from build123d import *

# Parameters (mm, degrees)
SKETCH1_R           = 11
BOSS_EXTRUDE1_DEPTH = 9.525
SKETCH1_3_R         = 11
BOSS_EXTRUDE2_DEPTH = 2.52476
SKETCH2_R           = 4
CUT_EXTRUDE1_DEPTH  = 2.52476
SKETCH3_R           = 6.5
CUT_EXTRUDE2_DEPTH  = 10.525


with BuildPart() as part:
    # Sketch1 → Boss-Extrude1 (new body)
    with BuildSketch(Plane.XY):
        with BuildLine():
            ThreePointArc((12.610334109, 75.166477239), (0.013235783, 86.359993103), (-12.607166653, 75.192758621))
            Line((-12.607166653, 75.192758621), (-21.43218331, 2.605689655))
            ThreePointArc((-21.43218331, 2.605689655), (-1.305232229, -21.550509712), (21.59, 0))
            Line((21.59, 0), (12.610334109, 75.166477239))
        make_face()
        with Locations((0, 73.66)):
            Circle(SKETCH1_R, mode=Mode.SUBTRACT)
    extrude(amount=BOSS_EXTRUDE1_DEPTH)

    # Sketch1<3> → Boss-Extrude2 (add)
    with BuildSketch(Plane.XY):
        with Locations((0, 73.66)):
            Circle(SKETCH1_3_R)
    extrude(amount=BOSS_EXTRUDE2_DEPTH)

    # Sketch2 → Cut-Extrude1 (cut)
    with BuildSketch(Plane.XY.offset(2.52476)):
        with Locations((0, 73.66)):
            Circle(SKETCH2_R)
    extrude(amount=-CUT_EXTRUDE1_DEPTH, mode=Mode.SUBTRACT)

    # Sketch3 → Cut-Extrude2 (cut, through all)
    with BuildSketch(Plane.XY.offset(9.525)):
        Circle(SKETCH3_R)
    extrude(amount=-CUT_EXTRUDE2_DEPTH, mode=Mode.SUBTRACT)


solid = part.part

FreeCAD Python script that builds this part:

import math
import FreeCAD as App
import Part
import Sketcher
Q = App.Units.Quantity

doc = App.newDocument("Part")
body = doc.addObject("PartDesign::Body", "Body")

# Sketch on XY plane
sketch1 = body.newObject("Sketcher::SketchObject", "Sketch")
sketch1.AttachmentSupport = (doc.getObject("XY_Plane"), [""])
sketch1.MapMode = "FlatFace"
sketch1.addGeometry(Part.ArcOfCircle(Part.Circle(App.Vector(0, 73.66, 0), App.Vector(0, 0, 1), 12.7), math.radians(6.81248), math.radians(173.068094)), False)
sketch1.addGeometry(Part.LineSegment(App.Vector(-12.607167, 75.192759, 0), App.Vector(-21.432183, 2.60569, 0)), False)
sketch1.addGeometry(Part.ArcOfCircle(Part.Circle(App.Vector(0, 0, 0), App.Vector(0, 0, 1), 21.59), math.radians(173.068094), math.radians(360)), False)
sketch1.addGeometry(Part.LineSegment(App.Vector(21.59, 0, 0), App.Vector(12.610334, 75.166477, 0)), False)
sketch1.addGeometry(Part.Circle(App.Vector(0, 73.66, 0), App.Vector(0, 0, 1), 11), False)
sketch1.addConstraint(Sketcher.Constraint("Tangent", 0, 2, 1, 1))
sketch1.addConstraint(Sketcher.Constraint("Tangent", 1, 2, 2, 1))
sketch1.addConstraint(Sketcher.Constraint("Coincident", 2, 2, 3, 1))
sketch1.addConstraint(Sketcher.Constraint("Tangent", 3, 2, 0, 1))
sketch1.addConstraint(Sketcher.Constraint("Coincident", 2, 3, -1, 1))
sketch1.addConstraint(Sketcher.Constraint("Coincident", 4, 3, 0, 3))
sketch1.addConstraint(Sketcher.Constraint("PointOnObject", 0, 3, -2))
sketch1.addConstraint(Sketcher.Constraint("PointOnObject", 2, 2, -1))
sketch1.addConstraint(Sketcher.Constraint("Diameter", 4, Q("22 mm")))
sketch1.addConstraint(Sketcher.Constraint("Radius", 0, Q("12.7 mm")))
sketch1.addConstraint(Sketcher.Constraint("Radius", 2, Q("21.59 mm")))
sketch1.addConstraint(Sketcher.Constraint("DistanceY", -1, 1, 0, 3, Q("73.66 mm")))
pad1 = body.newObject("PartDesign::Pad", "Pad")
pad1.Profile = sketch1
pad1.Length = 9.525

# Sketch on XY plane
sketch2 = body.newObject("Sketcher::SketchObject", "Sketch001")
sketch2.AttachmentSupport = (doc.getObject("XY_Plane"), [""])
sketch2.MapMode = "FlatFace"
sketch2.addGeometry(Part.Circle(App.Vector(0, 73.66, 0), App.Vector(0, 0, 1), 11), False)
sketch2.addConstraint(Sketcher.Constraint("PointOnObject", 0, 3, -2))
sketch2.addConstraint(Sketcher.Constraint("Diameter", 0, Q("22 mm")))
sketch2.addConstraint(Sketcher.Constraint("DistanceY", -1, 1, 0, 3, Q("73.66 mm")))
pad2 = body.newObject("PartDesign::Pad", "Pad001")
pad2.Profile = sketch2
pad2.Length = 2.52476

# Sketch on XY plane
sketch3 = body.newObject("Sketcher::SketchObject", "Sketch002")
sketch3.AttachmentSupport = (doc.getObject("XY_Plane"), [""])
sketch3.MapMode = "FlatFace"
sketch3.AttachmentOffset = App.Placement(App.Vector(0, 0, 2.52476), App.Rotation())
sketch3.addGeometry(Part.Circle(App.Vector(0, 73.66, 0), App.Vector(0, 0, 1), 4), False)
sketch3.addConstraint(Sketcher.Constraint("PointOnObject", 0, 3, -2))
sketch3.addConstraint(Sketcher.Constraint("Diameter", 0, Q("8 mm")))
sketch3.addConstraint(Sketcher.Constraint("DistanceY", -1, 1, 0, 3, Q("73.66 mm")))
pocket1 = body.newObject("PartDesign::Pocket", "Pocket")
pocket1.Profile = sketch3
pocket1.Length = 2.52476

# Sketch on XY plane
sketch4 = body.newObject("Sketcher::SketchObject", "Sketch003")
sketch4.AttachmentSupport = (doc.getObject("XY_Plane"), [""])
sketch4.MapMode = "FlatFace"
sketch4.AttachmentOffset = App.Placement(App.Vector(0, 0, 9.525), App.Rotation())
sketch4.addGeometry(Part.Circle(App.Vector(0, 0, 0), App.Vector(0, 0, 1), 6.5), False)
sketch4.addConstraint(Sketcher.Constraint("Coincident", 0, 3, -1, 1))
sketch4.addConstraint(Sketcher.Constraint("Diameter", 0, Q("13 mm")))
pocket2 = body.newObject("PartDesign::Pocket", "Pocket001")
pocket2.Profile = sketch4
pocket2.Type = "ThroughAll"

doc.recompute()
